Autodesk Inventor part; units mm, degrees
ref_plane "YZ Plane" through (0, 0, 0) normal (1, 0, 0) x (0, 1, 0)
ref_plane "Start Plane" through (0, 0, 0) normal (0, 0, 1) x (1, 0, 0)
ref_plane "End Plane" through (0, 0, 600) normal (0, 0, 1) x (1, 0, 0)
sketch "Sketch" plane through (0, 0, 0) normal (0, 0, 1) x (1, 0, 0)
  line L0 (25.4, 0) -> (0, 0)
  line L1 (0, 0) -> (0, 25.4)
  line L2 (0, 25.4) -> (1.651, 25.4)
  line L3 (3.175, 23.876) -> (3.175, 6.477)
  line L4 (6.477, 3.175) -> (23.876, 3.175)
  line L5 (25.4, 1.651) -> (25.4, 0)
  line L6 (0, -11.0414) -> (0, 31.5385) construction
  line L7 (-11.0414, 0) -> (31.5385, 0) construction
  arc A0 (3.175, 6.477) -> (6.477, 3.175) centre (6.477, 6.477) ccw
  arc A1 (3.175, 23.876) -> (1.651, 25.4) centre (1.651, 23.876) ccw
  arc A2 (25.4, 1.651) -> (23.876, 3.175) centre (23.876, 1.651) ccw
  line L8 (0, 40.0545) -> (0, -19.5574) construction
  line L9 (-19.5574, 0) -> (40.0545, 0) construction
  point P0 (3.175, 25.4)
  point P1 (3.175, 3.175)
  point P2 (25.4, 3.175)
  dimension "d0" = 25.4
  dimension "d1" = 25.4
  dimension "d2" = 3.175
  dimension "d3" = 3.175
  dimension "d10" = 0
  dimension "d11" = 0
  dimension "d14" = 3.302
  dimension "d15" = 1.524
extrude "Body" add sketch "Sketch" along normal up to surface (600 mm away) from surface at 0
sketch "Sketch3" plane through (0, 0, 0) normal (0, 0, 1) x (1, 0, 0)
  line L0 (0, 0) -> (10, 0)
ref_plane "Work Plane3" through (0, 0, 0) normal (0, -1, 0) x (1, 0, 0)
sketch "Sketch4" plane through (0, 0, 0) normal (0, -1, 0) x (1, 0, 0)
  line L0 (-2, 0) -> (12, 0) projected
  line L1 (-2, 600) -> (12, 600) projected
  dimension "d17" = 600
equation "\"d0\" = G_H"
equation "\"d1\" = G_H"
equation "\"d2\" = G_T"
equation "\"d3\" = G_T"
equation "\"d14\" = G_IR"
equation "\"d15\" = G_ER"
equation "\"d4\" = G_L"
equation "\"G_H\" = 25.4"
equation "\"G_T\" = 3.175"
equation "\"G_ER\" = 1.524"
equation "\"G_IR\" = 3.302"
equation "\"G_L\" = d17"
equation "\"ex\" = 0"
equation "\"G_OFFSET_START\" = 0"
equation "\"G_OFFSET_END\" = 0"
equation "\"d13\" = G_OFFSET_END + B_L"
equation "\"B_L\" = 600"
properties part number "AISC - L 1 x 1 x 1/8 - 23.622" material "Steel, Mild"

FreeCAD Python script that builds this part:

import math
import FreeCAD as App
import Part
import Sketcher
from FreeCAD import Vector
Q = App.Units.Quantity

doc = App.newDocument("Part")
body = doc.addObject("PartDesign::Body", "Body")

# Sketch on XY plane
sketch1 = body.newObject("Sketcher::SketchObject", "Sketch")
sketch1.AttachmentSupport = (doc.getObject("XY_Plane"), [""])
sketch1.MapMode = "FlatFace"
sketch1.addGeometry(Part.LineSegment(Vector(0, 0, 0), Vector(25.4, 0, 0)), False)
sketch1.addGeometry(Part.LineSegment(Vector(25.4, 0, 0), Vector(25.4, 1.7, 0)), False)
sketch1.addGeometry(Part.ArcOfCircle(Part.Circle(Vector(23.9, 1.7, 0), Vector(0, 0, 1), 1.5), math.radians(0), math.radians(90)), False)
sketch1.addGeometry(Part.LineSegment(Vector(23.9, 3.2, 0), Vector(6.5, 3.2, 0)), False)
sketch1.addGeometry(Part.ArcOfCircle(Part.Circle(Vector(6.5, 6.5, 0), Vector(0, 0, 1), 3.3), math.radians(180), math.radians(270)), False)
sketch1.addGeometry(Part.LineSegment(Vector(3.2, 6.5, 0), Vector(3.2, 23.9, 0)), False)
sketch1.addGeometry(Part.ArcOfCircle(Part.Circle(Vector(1.7, 23.9, 0), Vector(0, 0, 1), 1.5), math.radians(0), math.radians(90)), False)
sketch1.addGeometry(Part.LineSegment(Vector(1.7, 25.4, 0), Vector(0, 25.4, 0)), False)
sketch1.addGeometry(Part.LineSegment(Vector(0, 25.4, 0), Vector(0, 0, 0)), False)
sketch1.addConstraint(Sketcher.Constraint("Coincident", 0, 2, 1, 1))
sketch1.addConstraint(Sketcher.Constraint("Tangent", 1, 2, 2, 1))
sketch1.addConstraint(Sketcher.Constraint("Tangent", 2, 2, 3, 1))
sketch1.addConstraint(Sketcher.Constraint("Tangent", 3, 2, 4, 2))
sketch1.addConstraint(Sketcher.Constraint("Tangent", 4, 1, 5, 1))
sketch1.addConstraint(Sketcher.Constraint("Tangent", 5, 2, 6, 1))
sketch1.addConstraint(Sketcher.Constraint("Tangent", 6, 2, 7, 1))
sketch1.addConstraint(Sketcher.Constraint("Coincident", 7, 2, 8, 1))
sketch1.addConstraint(Sketcher.Constraint("Coincident", 8, 2, 0, 1))
sketch1.addConstraint(Sketcher.Constraint("Horizontal", 0))
sketch1.addConstraint(Sketcher.Constraint("Vertical", 1))
sketch1.addConstraint(Sketcher.Constraint("Horizontal", 3))
sketch1.addConstraint(Sketcher.Constraint("Vertical", 5))
sketch1.addConstraint(Sketcher.Constraint("Horizontal", 7))
sketch1.addConstraint(Sketcher.Constraint("Vertical", 8))
sketch1.addConstraint(Sketcher.Constraint("Coincident", 8, 2, -1, 1))
sketch1.addConstraint(Sketcher.Constraint("Equal", 2, 6))
sketch1.addConstraint(Sketcher.Constraint("Equal", 7, 1))
sketch1.addConstraint(Sketcher.Constraint("Equal", 3, 5))
sketch1.addConstraint(Sketcher.Constraint("DistanceX", 0, 1, 0, 2, Q("1 in")))
sketch1.addConstraint(Sketcher.Constraint("Radius", 2, Q("0.06 in")))
sketch1.addConstraint(Sketcher.Constraint("Radius", 4, Q("0.13 in")))
sketch1.addConstraint(Sketcher.Constraint("DistanceY", -1, 1, 2, 2, Q("0.125 in")))
pad1 = body.newObject("PartDesign::Pad", "Pad")
pad1.Profile = sketch1
pad1.Length = 600

doc.recompute()
